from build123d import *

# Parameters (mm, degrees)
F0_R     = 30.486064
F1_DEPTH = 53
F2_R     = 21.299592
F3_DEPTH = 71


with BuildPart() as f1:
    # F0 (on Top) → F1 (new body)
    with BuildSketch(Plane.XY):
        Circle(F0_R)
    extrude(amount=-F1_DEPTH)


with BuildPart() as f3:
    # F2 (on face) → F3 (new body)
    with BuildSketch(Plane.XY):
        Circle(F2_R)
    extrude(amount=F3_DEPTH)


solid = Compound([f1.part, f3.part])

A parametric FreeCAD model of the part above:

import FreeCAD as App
import Part
import Sketcher
from FreeCAD import Vector

doc = App.newDocument("Part")
body = doc.addObject("PartDesign::Body", "Body")

sketch1 = body.newObject("Sketcher::SketchObject", "Sketch")
sketch1.AttachmentSupport = (doc.getObject("XY_Plane"), [""])
sketch1.MapMode = "FlatFace"
sketch1.addGeometry(Part.Circle(Vector(0, 0, 0), Vector(0, 0, 1), 30.486064), False)
sketch1.addConstraint([
    Sketcher.Constraint("Coincident", 0, 3, -1, 1),
    Sketcher.Constraint("Diameter", 0, 60.972128),
])
pad1 = body.newObject("PartDesign::Pad", "Pad")
pad1.Profile = sketch1
pad1.Length = 53
pad1.Reversed = True
body2 = doc.addObject("PartDesign::Body", "Body001")

sketch2 = body2.newObject("Sketcher::SketchObject", "Sketch001")
sketch2.AttachmentSupport = (doc.getObject("XY_Plane001"), [""])
sketch2.MapMode = "FlatFace"
sketch2.addGeometry(Part.Circle(Vector(0, 0, 0), Vector(0, 0, 1), 21.299592), False)
sketch2.addConstraint([
    Sketcher.Constraint("Coincident", 0, 3, -1, 1),
    Sketcher.Constraint("Diameter", 0, 42.599184),
])
pad2 = body2.newObject("PartDesign::Pad", "Pad001")
pad2.Profile = sketch2
pad2.Length = 71

doc.recompute()
